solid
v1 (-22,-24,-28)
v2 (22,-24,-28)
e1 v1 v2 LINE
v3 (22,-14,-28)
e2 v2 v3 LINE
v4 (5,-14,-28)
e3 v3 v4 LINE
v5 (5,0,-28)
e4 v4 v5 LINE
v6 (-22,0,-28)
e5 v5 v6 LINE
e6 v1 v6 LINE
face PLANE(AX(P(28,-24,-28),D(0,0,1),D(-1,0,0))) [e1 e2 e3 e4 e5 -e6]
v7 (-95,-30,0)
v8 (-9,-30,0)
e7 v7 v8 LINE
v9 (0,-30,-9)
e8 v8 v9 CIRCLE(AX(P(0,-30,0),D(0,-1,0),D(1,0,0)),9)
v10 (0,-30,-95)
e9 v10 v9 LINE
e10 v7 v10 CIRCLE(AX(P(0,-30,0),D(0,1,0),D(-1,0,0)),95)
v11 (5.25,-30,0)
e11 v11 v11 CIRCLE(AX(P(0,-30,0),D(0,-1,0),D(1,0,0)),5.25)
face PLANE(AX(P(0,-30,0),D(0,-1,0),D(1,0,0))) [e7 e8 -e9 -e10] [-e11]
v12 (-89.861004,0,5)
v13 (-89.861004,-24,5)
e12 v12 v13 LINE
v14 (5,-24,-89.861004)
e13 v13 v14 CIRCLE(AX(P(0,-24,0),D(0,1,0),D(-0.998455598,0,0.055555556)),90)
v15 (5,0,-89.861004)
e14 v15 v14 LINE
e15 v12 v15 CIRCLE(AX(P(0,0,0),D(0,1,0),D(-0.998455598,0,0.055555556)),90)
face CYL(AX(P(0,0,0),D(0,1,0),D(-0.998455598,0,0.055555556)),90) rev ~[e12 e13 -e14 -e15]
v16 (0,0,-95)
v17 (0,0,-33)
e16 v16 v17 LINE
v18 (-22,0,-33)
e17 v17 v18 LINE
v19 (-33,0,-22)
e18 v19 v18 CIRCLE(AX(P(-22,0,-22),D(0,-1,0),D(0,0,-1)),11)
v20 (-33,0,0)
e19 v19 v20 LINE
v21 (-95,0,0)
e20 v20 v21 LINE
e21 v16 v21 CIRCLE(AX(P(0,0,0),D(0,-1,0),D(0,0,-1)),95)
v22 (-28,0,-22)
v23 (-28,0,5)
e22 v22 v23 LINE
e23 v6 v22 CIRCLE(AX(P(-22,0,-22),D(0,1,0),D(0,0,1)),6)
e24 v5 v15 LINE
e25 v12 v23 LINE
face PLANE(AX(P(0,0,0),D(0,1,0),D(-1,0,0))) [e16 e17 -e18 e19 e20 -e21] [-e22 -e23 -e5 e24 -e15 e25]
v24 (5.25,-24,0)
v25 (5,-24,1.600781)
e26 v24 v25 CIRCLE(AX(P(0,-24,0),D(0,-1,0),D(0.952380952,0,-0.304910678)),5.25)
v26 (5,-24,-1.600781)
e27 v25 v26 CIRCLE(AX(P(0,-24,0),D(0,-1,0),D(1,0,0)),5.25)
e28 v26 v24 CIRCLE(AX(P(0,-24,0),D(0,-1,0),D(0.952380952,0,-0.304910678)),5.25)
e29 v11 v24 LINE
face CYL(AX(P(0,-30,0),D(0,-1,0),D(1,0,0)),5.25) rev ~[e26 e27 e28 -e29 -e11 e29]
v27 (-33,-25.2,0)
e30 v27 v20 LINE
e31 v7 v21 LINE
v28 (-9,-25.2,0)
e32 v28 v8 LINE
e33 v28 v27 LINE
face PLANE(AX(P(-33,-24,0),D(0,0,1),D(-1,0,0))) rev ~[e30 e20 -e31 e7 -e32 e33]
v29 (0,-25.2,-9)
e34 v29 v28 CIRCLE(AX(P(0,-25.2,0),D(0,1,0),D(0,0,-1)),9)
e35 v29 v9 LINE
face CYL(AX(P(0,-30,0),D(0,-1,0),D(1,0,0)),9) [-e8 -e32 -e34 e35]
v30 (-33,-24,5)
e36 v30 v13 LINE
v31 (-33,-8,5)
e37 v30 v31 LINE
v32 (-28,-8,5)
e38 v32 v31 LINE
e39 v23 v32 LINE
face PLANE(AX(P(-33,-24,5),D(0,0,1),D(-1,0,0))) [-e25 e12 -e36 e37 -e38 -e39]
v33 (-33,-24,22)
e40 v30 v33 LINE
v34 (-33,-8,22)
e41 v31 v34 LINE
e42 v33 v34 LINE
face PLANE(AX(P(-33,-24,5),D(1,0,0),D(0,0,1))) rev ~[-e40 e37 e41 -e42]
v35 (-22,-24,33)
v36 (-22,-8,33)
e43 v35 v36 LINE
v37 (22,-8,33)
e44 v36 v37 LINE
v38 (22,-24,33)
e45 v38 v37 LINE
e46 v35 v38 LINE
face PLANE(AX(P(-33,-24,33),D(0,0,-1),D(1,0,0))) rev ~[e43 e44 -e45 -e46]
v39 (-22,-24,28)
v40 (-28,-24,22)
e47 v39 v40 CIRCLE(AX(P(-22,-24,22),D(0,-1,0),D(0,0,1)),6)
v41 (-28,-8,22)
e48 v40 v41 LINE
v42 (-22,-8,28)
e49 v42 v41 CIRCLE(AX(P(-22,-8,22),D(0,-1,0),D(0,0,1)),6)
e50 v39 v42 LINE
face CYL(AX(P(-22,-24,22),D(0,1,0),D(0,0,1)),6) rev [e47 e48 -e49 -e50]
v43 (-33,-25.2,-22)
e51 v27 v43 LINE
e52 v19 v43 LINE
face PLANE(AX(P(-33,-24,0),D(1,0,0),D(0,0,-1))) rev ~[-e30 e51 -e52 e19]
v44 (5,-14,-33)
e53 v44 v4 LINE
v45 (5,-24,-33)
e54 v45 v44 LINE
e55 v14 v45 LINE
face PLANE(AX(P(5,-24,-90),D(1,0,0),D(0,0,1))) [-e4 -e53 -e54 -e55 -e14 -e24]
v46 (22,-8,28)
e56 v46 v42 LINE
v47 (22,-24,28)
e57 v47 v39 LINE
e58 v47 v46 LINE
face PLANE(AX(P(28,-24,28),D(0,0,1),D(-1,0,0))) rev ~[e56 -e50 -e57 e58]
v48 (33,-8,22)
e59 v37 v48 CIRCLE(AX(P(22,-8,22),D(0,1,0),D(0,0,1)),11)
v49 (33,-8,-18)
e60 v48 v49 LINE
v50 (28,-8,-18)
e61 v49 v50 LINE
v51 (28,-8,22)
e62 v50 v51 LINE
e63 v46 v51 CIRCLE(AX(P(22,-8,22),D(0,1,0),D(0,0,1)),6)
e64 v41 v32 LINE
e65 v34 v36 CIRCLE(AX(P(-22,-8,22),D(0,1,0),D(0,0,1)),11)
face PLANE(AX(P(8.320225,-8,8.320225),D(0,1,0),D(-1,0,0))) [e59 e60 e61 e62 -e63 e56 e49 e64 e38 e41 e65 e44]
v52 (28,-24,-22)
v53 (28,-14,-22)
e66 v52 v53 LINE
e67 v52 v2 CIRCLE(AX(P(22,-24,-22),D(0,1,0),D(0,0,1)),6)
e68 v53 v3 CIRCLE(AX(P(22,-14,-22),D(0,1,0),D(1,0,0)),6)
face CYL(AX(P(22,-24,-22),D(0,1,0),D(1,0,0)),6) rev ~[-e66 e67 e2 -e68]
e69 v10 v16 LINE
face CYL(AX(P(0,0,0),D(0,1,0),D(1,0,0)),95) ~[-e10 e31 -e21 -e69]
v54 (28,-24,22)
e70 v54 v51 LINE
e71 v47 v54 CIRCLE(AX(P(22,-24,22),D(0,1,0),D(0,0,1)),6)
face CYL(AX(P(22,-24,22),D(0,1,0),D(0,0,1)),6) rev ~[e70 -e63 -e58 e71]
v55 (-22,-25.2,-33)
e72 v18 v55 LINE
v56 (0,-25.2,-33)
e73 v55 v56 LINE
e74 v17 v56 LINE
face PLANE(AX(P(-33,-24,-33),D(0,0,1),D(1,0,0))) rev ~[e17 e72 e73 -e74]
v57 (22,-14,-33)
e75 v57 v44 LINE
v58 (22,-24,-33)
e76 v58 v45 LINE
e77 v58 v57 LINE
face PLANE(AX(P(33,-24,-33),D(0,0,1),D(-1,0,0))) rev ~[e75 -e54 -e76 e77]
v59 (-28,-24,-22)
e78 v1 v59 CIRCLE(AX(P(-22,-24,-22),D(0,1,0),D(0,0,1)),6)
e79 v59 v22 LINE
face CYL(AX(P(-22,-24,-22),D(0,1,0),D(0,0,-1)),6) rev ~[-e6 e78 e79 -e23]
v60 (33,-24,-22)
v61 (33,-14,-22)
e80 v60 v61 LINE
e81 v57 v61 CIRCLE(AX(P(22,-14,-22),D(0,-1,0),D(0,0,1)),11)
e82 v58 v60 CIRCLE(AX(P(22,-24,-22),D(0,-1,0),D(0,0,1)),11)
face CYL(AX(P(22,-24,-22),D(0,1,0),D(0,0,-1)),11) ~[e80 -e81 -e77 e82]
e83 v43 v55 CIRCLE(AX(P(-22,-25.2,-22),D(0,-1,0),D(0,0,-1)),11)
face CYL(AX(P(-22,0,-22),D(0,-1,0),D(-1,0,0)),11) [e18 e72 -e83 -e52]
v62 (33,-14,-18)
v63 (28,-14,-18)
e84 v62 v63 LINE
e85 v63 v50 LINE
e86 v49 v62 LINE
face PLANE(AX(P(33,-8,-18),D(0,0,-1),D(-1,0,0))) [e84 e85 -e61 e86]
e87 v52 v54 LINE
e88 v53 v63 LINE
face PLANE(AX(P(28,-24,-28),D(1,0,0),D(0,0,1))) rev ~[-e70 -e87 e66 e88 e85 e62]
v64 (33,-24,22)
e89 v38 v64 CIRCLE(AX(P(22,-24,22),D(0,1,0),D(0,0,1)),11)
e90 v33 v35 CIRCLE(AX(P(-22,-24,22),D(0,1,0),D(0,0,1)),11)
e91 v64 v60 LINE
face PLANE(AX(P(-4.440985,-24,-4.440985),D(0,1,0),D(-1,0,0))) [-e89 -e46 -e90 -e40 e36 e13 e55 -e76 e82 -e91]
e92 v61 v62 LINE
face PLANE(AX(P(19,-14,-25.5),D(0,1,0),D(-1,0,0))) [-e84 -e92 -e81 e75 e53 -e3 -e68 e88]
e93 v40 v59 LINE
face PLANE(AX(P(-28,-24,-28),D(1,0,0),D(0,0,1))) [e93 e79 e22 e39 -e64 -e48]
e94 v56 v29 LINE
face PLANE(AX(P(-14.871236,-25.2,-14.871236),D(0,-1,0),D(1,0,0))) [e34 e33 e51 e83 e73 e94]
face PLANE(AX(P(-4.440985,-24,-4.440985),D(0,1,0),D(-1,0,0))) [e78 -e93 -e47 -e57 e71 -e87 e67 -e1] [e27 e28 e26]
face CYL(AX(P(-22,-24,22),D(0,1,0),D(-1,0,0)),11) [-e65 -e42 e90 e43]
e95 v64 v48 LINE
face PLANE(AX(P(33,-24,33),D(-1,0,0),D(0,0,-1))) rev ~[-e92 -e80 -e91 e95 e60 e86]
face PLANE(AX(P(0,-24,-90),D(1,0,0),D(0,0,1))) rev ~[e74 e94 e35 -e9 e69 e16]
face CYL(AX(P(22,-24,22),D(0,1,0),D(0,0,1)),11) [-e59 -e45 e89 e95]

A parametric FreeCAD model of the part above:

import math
import FreeCAD as App
import Part
import Sketcher
from FreeCAD import Vector


def edges_at(feature, points):
    """Names of the edges that pass closest to the given points."""
    edges = feature.Shape.Edges
    near = lambda p: min(range(len(edges)), key=lambda i: edges[i].distToShape(Part.Vertex(*p))[0])
    return sorted({f"Edge{near(p) + 1}" for p in points})


def add_polygon(sketch, points):
    """Adds a closed chain of lines whose ends are joined by coincident constraints."""
    first, n = sketch.GeometryCount, len(points)
    for a, b in zip(points, points[1:] + points[:1]):
        sketch.addGeometry(Part.LineSegment(App.Vector(*a, 0), App.Vector(*b, 0)), False)
    for i in range(n):
        sketch.addConstraint(Sketcher.Constraint("Coincident", first + i, 2, first + (i + 1) % n, 1))

doc = App.newDocument("Part")
body = doc.addObject("PartDesign::Body", "Body")

# Sketch on XZ plane
sketch1 = doc.addObject("Sketcher::SketchObject", "Sketch")
body.addObject(sketch1)
sketch1.AttachmentSupport = (doc.XZ_Plane, [""])
sketch1.MapMode = "FlatFace"
sketch1.addGeometry(Part.Circle(Vector(0, 0, 0), Vector(0, 0, 1), 95), False)
sketch1.addConstraint([
    Sketcher.Constraint("Coincident", 0, 3, -1, 1),
    Sketcher.Constraint("Diameter", 0, 190.0),
])
pad1 = doc.addObject("PartDesign::Pad", "Pad")
body.addObject(pad1)
pad1.Profile = sketch1
pad1.Length = 30

# Sketch on XZ plane
sketch2 = doc.addObject("Sketcher::SketchObject", "Sketch001")
body.addObject(sketch2)
sketch2.AttachmentSupport = (doc.XZ_Plane, [""])
sketch2.MapMode = "FlatFace"
sketch2.AttachmentOffset = App.Placement(Vector(0, 0, 30), App.Rotation())
add_polygon(sketch2, [(-95, 0), (-95, -95), (0, -95), (0, 0)])  # lines 0-3
sketch2.addConstraint([
    Sketcher.Constraint("Vertical", 0),
    Sketcher.Constraint("Horizontal", 1),
    Sketcher.Constraint("Vertical", 2),
    Sketcher.Constraint("Horizontal", 3),
    Sketcher.Constraint("Coincident", 2, 2, -1, 1),
    Sketcher.Constraint("Equal", 3, 0),
    Sketcher.Constraint("DistanceX", 1, 1, 1, 2, 95.0),
])
pocket1 = doc.addObject("PartDesign::Pocket", "Pocket")
body.addObject(pocket1)
pocket1.Profile = sketch2
pocket1.Length = 40

# Sketch on XZ plane
sketch3 = doc.addObject("Sketcher::SketchObject", "Sketch002")
body.addObject(sketch3)
sketch3.AttachmentSupport = (doc.XZ_Plane, [""])
sketch3.MapMode = "FlatFace"
sketch3.AttachmentOffset = App.Placement(Vector(0, 0, 30), App.Rotation())
sketch3.addGeometry(Part.Circle(Vector(0, 0, 0), Vector(0, 0, 1), 9), False)
sketch3.addConstraint([
    Sketcher.Constraint("Coincident", 0, 3, -1, 1),
    Sketcher.Constraint("Diameter", 0, 18.0),
])
pad2 = doc.addObject("PartDesign::Pad", "Pad001")
body.addObject(pad2)
pad2.Profile = sketch3
pad2.Length = 30
pad2.Reversed = True

# Sketch on XZ plane
sketch4 = doc.addObject("Sketcher::SketchObject", "Sketch003")
body.addObject(sketch4)
sketch4.AttachmentSupport = (doc.XZ_Plane, [""])
sketch4.MapMode = "FlatFace"
sketch4.AttachmentOffset = App.Placement(Vector(0, 0, 30), App.Rotation())
sketch4.addGeometry(Part.Circle(Vector(0, 0, 0), Vector(0, 0, 1), 5), False)
sketch4.addConstraint([
    Sketcher.Constraint("Coincident", 0, 3, -1, 1),
    Sketcher.Constraint("Diameter", 0, 10.5),
])
pocket2 = doc.addObject("PartDesign::Pocket", "Pocket001")
body.addObject(pocket2)
pocket2.Profile = sketch4
pocket2.Length = 40

# Sketch on XZ plane
sketch5 = doc.addObject("Sketcher::SketchObject", "Sketch004")
body.addObject(sketch5)
sketch5.AttachmentSupport = (doc.XZ_Plane, [""])
sketch5.MapMode = "FlatFace"
sketch5.addGeometry([
    Part.ArcOfCircle(Part.Circle(Vector(0, 0, 0), Vector(0, 0, 1), 90), math.radians(-87), math.radians(177)),  # 0
    Part.ArcOfCircle(Part.Circle(Vector(0, 0, 0), Vector(0, 0, 1), 90), math.radians(-90), math.radians(-86.82)),  # 1
    Part.ArcOfCircle(Part.Circle(Vector(0, 0, 0), Vector(0, 0, 1), 90), math.radians(180), math.radians(270)),  # 2
    Part.ArcOfCircle(Part.Circle(Vector(0, 0, 0), Vector(0, 0, 1), 90), math.radians(176.82), math.radians(180)),  # 3
    Part.ArcOfCircle(Part.Circle(Vector(0, 0, 0), Vector(0, 0, 1), 5.2), math.radians(-18), math.radians(18)),  # 4
    Part.LineSegment(Vector(5, 1.6, 0), Vector(5, -1.6, 0)),  # 5
], False)
sketch5.addConstraint([
    Sketcher.Constraint("Tangent", 0, 1, 1, 2),
    Sketcher.Constraint("Tangent", 1, 1, 2, 2),
    Sketcher.Constraint("Tangent", 2, 1, 3, 2),
    Sketcher.Constraint("Coincident", 3, 1, 0, 2),
    Sketcher.Constraint("Coincident", 4, 1, 5, 2),
    Sketcher.Constraint("Coincident", 5, 1, 4, 2),
    Sketcher.Constraint("Vertical", 5),
    Sketcher.Constraint("Coincident", 0, 3, -1, 1),
    Sketcher.Constraint("Coincident", 3, 3, -1, 1),
    Sketcher.Constraint("Coincident", 4, 3, -1, 1),
    Sketcher.Constraint("PointOnObject", 1, 1, -2),
    Sketcher.Constraint("PointOnObject", 2, 1, -1),
    Sketcher.Constraint("Vertical", 0, 1, 4, 1),
    Sketcher.Constraint("Radius", 0, 90.0),
    Sketcher.Constraint("Radius", 4, 5.25),
    Sketcher.Constraint("DistanceX", -1, 1, 0, 1, 5.0),
    Sketcher.Constraint("DistanceY", -1, 1, 3, 1, 5.0),
])
pocket3 = doc.addObject("PartDesign::Pocket", "Pocket002")
body.addObject(pocket3)
pocket3.Profile = sketch5
pocket3.Length = 24
pocket3.Reversed = True

# Sketch on XZ plane
sketch6 = doc.addObject("Sketcher::SketchObject", "Sketch005")
body.addObject(sketch6)
sketch6.AttachmentSupport = (doc.XZ_Plane, [""])
sketch6.MapMode = "FlatFace"
sketch6.AttachmentOffset = App.Placement(Vector(0, 0, 24), App.Rotation())
add_polygon(sketch6, [(-33, 33), (33, 33), (33, -33), (5, -33), (5, -90), (0, -90), (0, -33), (-33, -33), (-33, 0), (-90, 0), (-90, 5), (-33, 5)])  # lines 0-11
add_polygon(sketch6, [(-28, -28), (28, -28), (28, 28), (-28, 28)])  # lines 12-15
sketch6.addConstraint([
    Sketcher.Constraint("Horizontal", 0),
    Sketcher.Constraint("Vertical", 1),
    Sketcher.Constraint("Horizontal", 2),
    Sketcher.Constraint("Vertical", 3),
    Sketcher.Constraint("Horizontal", 4),
    Sketcher.Constraint("Vertical", 5),
    Sketcher.Constraint("Horizontal", 6),
    Sketcher.Constraint("Vertical", 7),
    Sketcher.Constraint("Horizontal", 8),
    Sketcher.Constraint("Vertical", 9),
    Sketcher.Constraint("Horizontal", 10),
    Sketcher.Constraint("Vertical", 11),
    Sketcher.Constraint("Horizontal", 12),
    Sketcher.Constraint("Vertical", 13),
    Sketcher.Constraint("Horizontal", 14),
    Sketcher.Constraint("Vertical", 15),
    Sketcher.Constraint("Symmetric", 0, 2, 6, 2, -1, 1),
    Sketcher.Constraint("Symmetric", 1, 2, 11, 2, -1, 1),
    Sketcher.Constraint("Symmetric", 12, 2, 14, 2, -1, 1),
    Sketcher.Constraint("PointOnObject", 4, 2, -2),
    Sketcher.Constraint("PointOnObject", 7, 2, -1),
    Sketcher.Constraint("Equal", 0, 1),
    Sketcher.Constraint("Equal", 10, 3),
    Sketcher.Constraint("Equal", 4, 9),
    Sketcher.Constraint("Equal", 14, 13),
    Sketcher.Constraint("DistanceX", 0, 1, 0, 2, 66.0),
    Sketcher.Constraint("DistanceX", 2, 2, 2, 1, 28.0),
    Sketcher.Constraint("DistanceX", 8, 2, 8, 1, 57.0),
    Sketcher.Constraint("DistanceX", 12, 1, 12, 2, 56.0),
])
pad3 = doc.addObject("PartDesign::Pad", "Pad002")
body.addObject(pad3)
pad3.Profile = sketch6
pad3.Length = 24
pad3.Reversed = True

# Sketch on XZ plane
sketch7 = doc.addObject("Sketcher::SketchObject", "Sketch006")
body.addObject(sketch7)
sketch7.AttachmentSupport = (doc.XZ_Plane, [""])
sketch7.MapMode = "FlatFace"
sketch7.AttachmentOffset = App.Placement(Vector(0, 0, 24), App.Rotation())
sketch7.addGeometry([
    Part.ArcOfCircle(Part.Circle(Vector(0, 0, 0), Vector(0, 0, 1), 9), math.radians(180), math.radians(270)),  # 0
    Part.LineSegment(Vector(-9, 0, 0), Vector(-33, 0, 0)),  # 1
    Part.LineSegment(Vector(-33, 0, 0), Vector(-33, -33, 0)),  # 2
    Part.LineSegment(Vector(-33, -33, 0), Vector(0, -33, 0)),  # 3
    Part.LineSegment(Vector(0, -33, 0), Vector(0, -9, 0)),  # 4
], False)
sketch7.addConstraint([
    Sketcher.Constraint("Coincident", 0, 1, 1, 1),
    Sketcher.Constraint("Coincident", 1, 2, 2, 1),
    Sketcher.Constraint("Coincident", 2, 2, 3, 1),
    Sketcher.Constraint("Coincident", 3, 2, 4, 1),
    Sketcher.Constraint("Coincident", 4, 2, 0, 2),
    Sketcher.Constraint("Horizontal", 1),
    Sketcher.Constraint("Vertical", 2),
    Sketcher.Constraint("Horizontal", 3),
    Sketcher.Constraint("Vertical", 4),
    Sketcher.Constraint("Coincident", 0, 3, -1, 1),
    Sketcher.Constraint("PointOnObject", 0, 1, -1),
    Sketcher.Constraint("PointOnObject", 3, 2, -2),
    Sketcher.Constraint("Equal", 3, 2),
    Sketcher.Constraint("Radius", 0, 9.0),
    Sketcher.Constraint("DistanceX", 1, 2, 1, 1, 24.0),
])
pad4 = doc.addObject("PartDesign::Pad", "Pad003")
body.addObject(pad4)
pad4.Profile = sketch7
pad4.Length = 1.2

# Sketch on XZ plane
sketch8 = doc.addObject("Sketcher::SketchObject", "Sketch007")
body.addObject(sketch8)
sketch8.AttachmentSupport = (doc.XZ_Plane, [""])
sketch8.MapMode = "FlatFace"
add_polygon(sketch8, [(-33, 33), (33, 33), (33, -33), (5, -33), (5, -28), (28, -28), (28, 28), (-28, 28), (-28, 5), (-33, 5)])  # lines 0-9
sketch8.addConstraint([
    Sketcher.Constraint("Horizontal", 0),
    Sketcher.Constraint("Vertical", 1),
    Sketcher.Constraint("Horizontal", 2),
    Sketcher.Constraint("Vertical", 3),
    Sketcher.Constraint("Horizontal", 4),
    Sketcher.Constraint("Vertical", 5),
    Sketcher.Constraint("Horizontal", 6),
    Sketcher.Constraint("Vertical", 7),
    Sketcher.Constraint("Horizontal", 8),
    Sketcher.Constraint("Vertical", 9),
    Sketcher.Constraint("Symmetric", 4, 2, 6, 2, -1, 1),
    Sketcher.Constraint("Symmetric", 1, 2, 9, 2, -1, 1),
    Sketcher.Constraint("Equal", 0, 1),
    Sketcher.Constraint("Equal", 8, 3),
    Sketcher.Constraint("Equal", 4, 7),
    Sketcher.Constraint("DistanceX", 0, 1, 0, 2, 66.0),
    Sketcher.Constraint("DistanceX", 2, 2, 2, 1, 28.0),
    Sketcher.Constraint("DistanceX", 4, 1, 4, 2, 23.0),
])
pocket4 = doc.addObject("PartDesign::Pocket", "Pocket003")
body.addObject(pocket4)
pocket4.Profile = sketch8
pocket4.Length = 8
pocket4.Reversed = True
doc.recompute()

fillet = doc.addObject("PartDesign::Fillet", "Fillet")
body.addObject(fillet)
fillet.Base = (pocket4, edges_at(pocket4, [
    (-28, -12, -28),
    (28, -16, -28),
    (28, -16, 28),
    (-28, -16, 28),
]))
fillet.Radius = 6

# Sketch on XZ plane
sketch9 = doc.addObject("Sketcher::SketchObject", "Sketch008")
body.addObject(sketch9)
sketch9.AttachmentSupport = (doc.XZ_Plane, [""])
sketch9.MapMode = "FlatFace"
sketch9.AttachmentOffset = App.Placement(Vector(0, 0, 8), App.Rotation())
add_polygon(sketch9, [(33, -18), (33, -33), (5, -33), (5, -18)])  # lines 0-3
sketch9.addConstraint([
    Sketcher.Constraint("Vertical", 0),
    Sketcher.Constraint("Horizontal", 1),
    Sketcher.Constraint("Vertical", 2),
    Sketcher.Constraint("Horizontal", 3),
    Sketcher.Constraint("DistanceX", 1, 2, 1, 1, 28.0),
    Sketcher.Constraint("DistanceY", 0, 2, 0, 1, 15.0),
    Sketcher.Constraint("DistanceX", -1, 1, 0, 2, 33.0),
    Sketcher.Constraint("DistanceY", 0, 2, -1, 1, 33.0),
])
pocket5 = doc.addObject("PartDesign::Pocket", "Pocket004")
body.addObject(pocket5)
pocket5.Profile = sketch9
pocket5.Length = 6
pocket5.Reversed = True
doc.recompute()

fillet2 = doc.addObject("PartDesign::Fillet", "Fillet001")
body.addObject(fillet2)
fillet2.Base = (pocket5, edges_at(pocket5, [
    (33, -19, -33),
    (-33, -12.6, -33),
    (33, -16, 33),
    (-33, -16, 33),
]))
fillet2.Radius = 11

doc.recompute()
